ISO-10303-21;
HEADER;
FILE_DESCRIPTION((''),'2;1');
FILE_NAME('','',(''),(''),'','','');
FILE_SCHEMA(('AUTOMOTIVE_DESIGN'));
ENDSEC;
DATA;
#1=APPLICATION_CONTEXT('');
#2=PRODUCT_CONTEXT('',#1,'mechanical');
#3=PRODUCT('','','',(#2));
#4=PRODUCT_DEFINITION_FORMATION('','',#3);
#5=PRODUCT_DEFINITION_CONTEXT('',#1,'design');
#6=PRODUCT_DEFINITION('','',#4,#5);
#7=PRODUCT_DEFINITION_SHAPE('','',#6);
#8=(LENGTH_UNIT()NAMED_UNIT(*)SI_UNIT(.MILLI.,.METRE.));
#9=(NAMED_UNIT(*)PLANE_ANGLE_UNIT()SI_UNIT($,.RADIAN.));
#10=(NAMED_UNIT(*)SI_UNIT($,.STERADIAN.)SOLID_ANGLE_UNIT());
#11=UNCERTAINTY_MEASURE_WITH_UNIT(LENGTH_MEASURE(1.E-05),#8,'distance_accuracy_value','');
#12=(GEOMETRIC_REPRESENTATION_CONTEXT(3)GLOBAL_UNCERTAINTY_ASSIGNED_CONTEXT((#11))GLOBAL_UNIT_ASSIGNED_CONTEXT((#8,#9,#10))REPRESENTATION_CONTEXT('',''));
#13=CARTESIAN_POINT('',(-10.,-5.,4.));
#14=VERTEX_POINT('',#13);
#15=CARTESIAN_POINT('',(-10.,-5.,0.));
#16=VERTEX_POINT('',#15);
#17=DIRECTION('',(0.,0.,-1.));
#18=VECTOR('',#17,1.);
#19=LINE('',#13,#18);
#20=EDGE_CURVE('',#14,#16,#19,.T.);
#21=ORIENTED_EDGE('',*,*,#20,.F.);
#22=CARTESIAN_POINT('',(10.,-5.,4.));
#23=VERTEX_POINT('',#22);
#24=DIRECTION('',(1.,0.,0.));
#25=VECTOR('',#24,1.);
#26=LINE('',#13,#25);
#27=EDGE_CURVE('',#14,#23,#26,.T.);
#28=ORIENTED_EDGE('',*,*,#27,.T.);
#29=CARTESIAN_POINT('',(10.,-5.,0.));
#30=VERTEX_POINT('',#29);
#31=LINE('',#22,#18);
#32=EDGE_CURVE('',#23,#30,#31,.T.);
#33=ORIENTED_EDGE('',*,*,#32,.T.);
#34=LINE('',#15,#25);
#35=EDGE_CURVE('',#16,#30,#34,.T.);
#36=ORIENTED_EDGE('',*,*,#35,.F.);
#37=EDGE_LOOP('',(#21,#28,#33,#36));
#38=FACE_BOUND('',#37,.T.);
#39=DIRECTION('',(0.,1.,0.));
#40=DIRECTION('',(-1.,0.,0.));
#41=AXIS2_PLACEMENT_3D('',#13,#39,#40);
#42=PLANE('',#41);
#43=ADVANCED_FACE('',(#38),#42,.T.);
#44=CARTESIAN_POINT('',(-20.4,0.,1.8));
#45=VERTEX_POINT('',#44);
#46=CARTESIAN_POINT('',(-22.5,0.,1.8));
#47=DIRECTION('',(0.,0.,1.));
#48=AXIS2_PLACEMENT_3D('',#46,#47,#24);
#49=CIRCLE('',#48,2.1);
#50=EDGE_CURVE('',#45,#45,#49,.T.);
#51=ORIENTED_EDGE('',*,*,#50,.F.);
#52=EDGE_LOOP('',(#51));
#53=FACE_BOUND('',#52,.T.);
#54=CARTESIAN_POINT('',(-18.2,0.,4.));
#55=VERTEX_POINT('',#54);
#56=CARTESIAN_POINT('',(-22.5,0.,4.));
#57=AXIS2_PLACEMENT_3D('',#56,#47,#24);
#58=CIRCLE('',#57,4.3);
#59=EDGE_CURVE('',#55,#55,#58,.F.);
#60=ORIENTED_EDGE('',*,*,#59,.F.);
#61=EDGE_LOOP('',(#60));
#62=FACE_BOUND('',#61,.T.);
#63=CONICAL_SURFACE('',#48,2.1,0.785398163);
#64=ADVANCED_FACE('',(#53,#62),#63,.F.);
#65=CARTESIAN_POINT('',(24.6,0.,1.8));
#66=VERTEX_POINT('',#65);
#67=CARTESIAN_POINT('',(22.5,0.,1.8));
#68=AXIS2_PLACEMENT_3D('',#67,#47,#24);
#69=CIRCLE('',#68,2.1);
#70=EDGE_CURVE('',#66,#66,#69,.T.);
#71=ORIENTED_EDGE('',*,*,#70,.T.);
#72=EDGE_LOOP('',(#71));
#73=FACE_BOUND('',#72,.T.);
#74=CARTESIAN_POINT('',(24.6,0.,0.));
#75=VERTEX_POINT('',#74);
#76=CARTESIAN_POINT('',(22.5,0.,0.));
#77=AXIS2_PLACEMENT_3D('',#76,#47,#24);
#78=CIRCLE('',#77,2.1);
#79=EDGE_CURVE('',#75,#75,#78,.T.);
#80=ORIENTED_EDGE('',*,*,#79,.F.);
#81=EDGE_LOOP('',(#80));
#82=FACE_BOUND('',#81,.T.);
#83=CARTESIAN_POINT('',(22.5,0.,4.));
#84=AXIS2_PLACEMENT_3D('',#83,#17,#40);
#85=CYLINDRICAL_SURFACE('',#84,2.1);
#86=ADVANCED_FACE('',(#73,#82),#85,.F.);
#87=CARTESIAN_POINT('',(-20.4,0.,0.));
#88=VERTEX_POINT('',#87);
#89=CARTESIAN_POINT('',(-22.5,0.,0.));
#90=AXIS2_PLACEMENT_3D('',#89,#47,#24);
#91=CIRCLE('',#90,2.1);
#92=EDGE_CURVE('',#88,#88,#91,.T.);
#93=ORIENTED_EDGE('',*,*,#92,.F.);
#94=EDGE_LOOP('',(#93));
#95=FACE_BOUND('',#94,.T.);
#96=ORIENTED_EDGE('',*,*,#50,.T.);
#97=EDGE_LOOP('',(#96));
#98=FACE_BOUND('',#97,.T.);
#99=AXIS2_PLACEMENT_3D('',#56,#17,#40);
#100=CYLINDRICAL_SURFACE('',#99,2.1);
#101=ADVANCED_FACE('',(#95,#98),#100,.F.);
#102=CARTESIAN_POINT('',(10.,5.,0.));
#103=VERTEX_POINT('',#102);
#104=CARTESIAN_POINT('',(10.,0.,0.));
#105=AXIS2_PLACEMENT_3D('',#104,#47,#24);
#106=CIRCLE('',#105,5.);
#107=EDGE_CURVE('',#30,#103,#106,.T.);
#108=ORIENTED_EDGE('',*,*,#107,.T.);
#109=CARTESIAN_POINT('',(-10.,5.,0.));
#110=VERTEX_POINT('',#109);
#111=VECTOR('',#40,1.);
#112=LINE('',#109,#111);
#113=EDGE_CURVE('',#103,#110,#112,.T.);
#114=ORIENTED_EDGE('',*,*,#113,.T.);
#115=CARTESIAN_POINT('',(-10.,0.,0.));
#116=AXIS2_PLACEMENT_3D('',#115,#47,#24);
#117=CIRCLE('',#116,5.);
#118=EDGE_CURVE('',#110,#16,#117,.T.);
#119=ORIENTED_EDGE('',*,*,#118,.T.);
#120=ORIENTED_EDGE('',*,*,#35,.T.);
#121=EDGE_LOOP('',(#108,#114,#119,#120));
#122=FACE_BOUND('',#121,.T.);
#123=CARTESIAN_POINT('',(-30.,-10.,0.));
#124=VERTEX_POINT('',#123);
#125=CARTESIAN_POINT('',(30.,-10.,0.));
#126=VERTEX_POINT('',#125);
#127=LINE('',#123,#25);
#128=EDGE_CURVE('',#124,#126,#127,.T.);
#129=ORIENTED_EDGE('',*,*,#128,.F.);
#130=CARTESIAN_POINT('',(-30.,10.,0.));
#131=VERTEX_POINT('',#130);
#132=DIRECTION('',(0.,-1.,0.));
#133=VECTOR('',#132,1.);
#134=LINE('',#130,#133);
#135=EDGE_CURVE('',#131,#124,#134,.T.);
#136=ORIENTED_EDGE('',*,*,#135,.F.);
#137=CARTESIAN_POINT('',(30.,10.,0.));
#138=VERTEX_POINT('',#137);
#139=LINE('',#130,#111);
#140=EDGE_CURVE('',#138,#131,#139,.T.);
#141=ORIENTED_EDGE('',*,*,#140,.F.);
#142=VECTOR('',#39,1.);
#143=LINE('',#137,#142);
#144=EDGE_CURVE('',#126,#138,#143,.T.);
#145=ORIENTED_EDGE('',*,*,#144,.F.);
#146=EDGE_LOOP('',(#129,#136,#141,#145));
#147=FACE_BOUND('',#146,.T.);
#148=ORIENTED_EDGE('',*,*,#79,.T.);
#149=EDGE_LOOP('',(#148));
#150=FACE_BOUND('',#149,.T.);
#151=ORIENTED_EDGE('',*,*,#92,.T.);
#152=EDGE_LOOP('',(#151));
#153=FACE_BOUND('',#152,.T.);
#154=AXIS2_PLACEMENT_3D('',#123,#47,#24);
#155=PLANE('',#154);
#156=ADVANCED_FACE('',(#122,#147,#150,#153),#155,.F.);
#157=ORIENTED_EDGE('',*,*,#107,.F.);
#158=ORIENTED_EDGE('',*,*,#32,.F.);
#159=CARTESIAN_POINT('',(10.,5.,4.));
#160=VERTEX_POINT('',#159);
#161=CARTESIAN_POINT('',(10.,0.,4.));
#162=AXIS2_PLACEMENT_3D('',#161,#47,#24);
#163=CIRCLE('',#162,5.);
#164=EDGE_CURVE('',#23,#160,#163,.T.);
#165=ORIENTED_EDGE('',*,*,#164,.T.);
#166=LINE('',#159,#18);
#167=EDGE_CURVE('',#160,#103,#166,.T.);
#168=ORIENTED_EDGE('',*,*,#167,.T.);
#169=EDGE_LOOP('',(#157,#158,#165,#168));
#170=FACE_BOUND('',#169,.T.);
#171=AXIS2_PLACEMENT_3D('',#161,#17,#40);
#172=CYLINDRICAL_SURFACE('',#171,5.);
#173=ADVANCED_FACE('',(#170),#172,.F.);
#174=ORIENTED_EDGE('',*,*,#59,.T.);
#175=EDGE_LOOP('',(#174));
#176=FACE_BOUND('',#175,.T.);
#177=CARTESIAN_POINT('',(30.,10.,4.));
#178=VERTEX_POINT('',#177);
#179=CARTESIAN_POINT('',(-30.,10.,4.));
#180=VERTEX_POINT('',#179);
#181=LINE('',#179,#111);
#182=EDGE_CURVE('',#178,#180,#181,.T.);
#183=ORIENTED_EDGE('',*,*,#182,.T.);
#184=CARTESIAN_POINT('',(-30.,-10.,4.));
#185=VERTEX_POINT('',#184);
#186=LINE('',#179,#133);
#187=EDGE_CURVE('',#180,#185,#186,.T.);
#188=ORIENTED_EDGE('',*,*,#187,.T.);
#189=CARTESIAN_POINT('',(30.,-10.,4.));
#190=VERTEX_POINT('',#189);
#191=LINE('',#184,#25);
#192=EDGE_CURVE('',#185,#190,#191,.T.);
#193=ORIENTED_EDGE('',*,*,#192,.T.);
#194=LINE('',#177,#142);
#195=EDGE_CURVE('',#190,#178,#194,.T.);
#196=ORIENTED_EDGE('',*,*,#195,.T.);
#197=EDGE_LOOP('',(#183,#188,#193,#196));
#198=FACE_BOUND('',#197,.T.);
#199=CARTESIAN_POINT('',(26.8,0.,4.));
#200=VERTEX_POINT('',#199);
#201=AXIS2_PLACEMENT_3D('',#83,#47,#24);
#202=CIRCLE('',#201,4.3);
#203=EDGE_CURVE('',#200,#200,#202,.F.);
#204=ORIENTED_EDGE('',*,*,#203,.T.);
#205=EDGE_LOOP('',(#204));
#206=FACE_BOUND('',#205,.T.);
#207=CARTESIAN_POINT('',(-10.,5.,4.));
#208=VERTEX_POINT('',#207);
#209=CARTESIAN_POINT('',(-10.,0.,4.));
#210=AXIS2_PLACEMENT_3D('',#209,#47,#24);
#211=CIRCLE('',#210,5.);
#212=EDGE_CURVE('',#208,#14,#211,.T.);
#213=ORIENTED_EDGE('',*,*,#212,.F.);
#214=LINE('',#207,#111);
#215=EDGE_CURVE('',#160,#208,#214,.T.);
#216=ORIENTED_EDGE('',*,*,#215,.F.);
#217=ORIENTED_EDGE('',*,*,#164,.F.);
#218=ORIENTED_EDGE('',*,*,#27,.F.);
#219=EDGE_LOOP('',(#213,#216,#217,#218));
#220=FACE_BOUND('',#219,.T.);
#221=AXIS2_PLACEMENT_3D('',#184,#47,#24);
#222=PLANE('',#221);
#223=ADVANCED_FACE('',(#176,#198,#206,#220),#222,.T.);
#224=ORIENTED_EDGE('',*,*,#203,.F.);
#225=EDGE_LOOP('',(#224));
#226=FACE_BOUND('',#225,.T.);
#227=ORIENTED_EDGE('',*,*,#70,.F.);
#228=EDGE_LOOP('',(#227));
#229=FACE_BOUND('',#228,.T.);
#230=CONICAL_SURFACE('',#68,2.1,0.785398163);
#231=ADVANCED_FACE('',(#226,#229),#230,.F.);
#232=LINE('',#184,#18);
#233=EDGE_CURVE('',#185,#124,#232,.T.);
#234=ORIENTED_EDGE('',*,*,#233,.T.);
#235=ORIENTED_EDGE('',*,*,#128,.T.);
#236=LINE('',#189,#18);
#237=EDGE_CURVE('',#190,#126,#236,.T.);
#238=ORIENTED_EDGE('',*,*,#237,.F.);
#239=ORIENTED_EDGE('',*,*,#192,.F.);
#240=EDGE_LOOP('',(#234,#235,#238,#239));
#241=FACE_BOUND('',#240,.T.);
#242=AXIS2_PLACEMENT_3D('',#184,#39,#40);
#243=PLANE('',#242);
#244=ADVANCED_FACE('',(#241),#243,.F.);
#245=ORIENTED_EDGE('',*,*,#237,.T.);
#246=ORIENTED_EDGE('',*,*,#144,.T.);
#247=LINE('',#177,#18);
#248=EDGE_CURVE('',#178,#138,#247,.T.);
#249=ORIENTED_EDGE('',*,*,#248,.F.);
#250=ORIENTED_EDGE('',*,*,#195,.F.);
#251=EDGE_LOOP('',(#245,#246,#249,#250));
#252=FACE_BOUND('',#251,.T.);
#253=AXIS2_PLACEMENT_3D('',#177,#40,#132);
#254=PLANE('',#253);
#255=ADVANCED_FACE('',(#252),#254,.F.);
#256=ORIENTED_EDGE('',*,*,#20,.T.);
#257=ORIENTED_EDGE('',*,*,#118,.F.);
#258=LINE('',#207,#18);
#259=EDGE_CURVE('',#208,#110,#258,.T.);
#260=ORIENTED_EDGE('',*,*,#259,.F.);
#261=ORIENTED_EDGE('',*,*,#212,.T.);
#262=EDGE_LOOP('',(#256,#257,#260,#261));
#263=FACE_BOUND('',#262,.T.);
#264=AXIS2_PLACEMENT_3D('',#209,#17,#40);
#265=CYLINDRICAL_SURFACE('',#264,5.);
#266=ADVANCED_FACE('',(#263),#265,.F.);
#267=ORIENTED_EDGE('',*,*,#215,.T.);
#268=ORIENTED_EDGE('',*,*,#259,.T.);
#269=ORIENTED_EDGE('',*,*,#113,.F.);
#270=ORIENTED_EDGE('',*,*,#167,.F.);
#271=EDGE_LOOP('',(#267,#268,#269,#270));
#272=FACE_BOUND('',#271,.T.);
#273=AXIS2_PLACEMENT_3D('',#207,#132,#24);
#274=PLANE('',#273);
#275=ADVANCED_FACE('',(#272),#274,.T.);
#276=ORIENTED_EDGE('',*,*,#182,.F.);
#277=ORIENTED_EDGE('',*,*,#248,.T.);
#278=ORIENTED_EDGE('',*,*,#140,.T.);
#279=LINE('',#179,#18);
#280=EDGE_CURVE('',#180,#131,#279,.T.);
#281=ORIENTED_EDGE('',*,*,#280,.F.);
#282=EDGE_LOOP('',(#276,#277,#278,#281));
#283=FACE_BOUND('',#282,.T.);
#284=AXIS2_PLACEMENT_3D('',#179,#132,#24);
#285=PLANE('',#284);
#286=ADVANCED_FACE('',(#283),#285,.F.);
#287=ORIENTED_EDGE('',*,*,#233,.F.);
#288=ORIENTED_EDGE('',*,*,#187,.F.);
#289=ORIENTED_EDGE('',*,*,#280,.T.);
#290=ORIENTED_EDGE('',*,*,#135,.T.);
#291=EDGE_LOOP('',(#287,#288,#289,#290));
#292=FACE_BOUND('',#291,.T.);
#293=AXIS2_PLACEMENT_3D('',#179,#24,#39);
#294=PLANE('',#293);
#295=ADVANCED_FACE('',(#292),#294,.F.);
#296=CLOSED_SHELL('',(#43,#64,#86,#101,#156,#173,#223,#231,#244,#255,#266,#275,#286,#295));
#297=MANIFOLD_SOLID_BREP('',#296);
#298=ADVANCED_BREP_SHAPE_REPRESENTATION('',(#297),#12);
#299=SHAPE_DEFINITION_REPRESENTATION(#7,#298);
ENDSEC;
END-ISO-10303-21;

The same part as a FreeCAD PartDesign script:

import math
import FreeCAD as App
import Part
import Sketcher


def edges_at(feature, points):
    """Names of the edges that pass closest to the given points."""
    edges = feature.Shape.Edges
    near = lambda p: min(range(len(edges)), key=lambda i: edges[i].distToShape(Part.Vertex(*p))[0])
    return sorted({f"Edge{near(p) + 1}" for p in points})

doc = App.newDocument("Part")
body = doc.addObject("PartDesign::Body", "Body")

sketch1 = doc.addObject("Sketcher::SketchObject", "Sketch")
body.addObject(sketch1)
sketch1.AttachmentSupport = (doc.XY_Plane, [""])
sketch1.MapMode = "FlatFace"
sketch1.addGeometry([
    Part.LineSegment(App.Vector(-30, 10, 0), App.Vector(-30, -10, 0)),
    Part.LineSegment(App.Vector(-30, -10, 0), App.Vector(30, -10, 0)),
    Part.LineSegment(App.Vector(30, -10, 0), App.Vector(30, 10, 0)),
    Part.LineSegment(App.Vector(30, 10, 0), App.Vector(-30, 10, 0)),
    Part.Circle(App.Vector(-22.5, 0, 0), App.Vector(0, 0, 1), 2.1),
    Part.ArcOfCircle(Part.Circle(App.Vector(-10, 0, 0), App.Vector(0, 0, 1), 5), math.radians(90), math.radians(270)),
    Part.LineSegment(App.Vector(-10, 5, 0), App.Vector(10, 5, 0)),
    Part.ArcOfCircle(Part.Circle(App.Vector(10, 0, 0), App.Vector(0, 0, 1), 5), math.radians(-90), math.radians(90)),
    Part.LineSegment(App.Vector(10, -5, 0), App.Vector(-10, -5, 0)),
    Part.Circle(App.Vector(22.5, 0, 0), App.Vector(0, 0, 1), 2.1),
], False)
sketch1.addConstraint([
    Sketcher.Constraint("Coincident", 0, 2, 1, 1),
    Sketcher.Constraint("Coincident", 1, 2, 2, 1),
    Sketcher.Constraint("Coincident", 2, 2, 3, 1),
    Sketcher.Constraint("Coincident", 3, 2, 0, 1),
    Sketcher.Constraint("Tangent", 5, 1, 6, 1),
    Sketcher.Constraint("Tangent", 6, 2, 7, 2),
    Sketcher.Constraint("Tangent", 7, 1, 8, 1),
    Sketcher.Constraint("Tangent", 8, 2, 5, 2),
    Sketcher.Constraint("Vertical", 0),
    Sketcher.Constraint("Horizontal", 1),
    Sketcher.Constraint("Vertical", 2),
    Sketcher.Constraint("Horizontal", 3),
    Sketcher.Constraint("Horizontal", 6),
    Sketcher.Constraint("Horizontal", 8),
    Sketcher.Constraint("Equal", 4, 9),
    Sketcher.Constraint("Symmetric", 5, 3, 7, 3, -1, 1),
    Sketcher.Constraint("Symmetric", 4, 3, 9, 3, -1, 1),
    Sketcher.Constraint("Symmetric", 0, 2, 2, 2, -1, 1),
    Sketcher.Constraint("PointOnObject", 4, 3, -1),
    Sketcher.Constraint("Equal", 8, 0),
    Sketcher.Constraint("Radius", 5, 5.0),
    Sketcher.Constraint("Diameter", 4, 4.2),
    Sketcher.Constraint("DistanceX", 1, 1, 1, 2, 60.0),
    Sketcher.Constraint("DistanceX", 6, 1, 6, 2, 20.0),
    Sketcher.Constraint("DistanceX", 4, 3, 9, 3, 45.0),
])
pad1 = doc.addObject("PartDesign::Pad", "Pad")
body.addObject(pad1)
pad1.Profile = sketch1
pad1.Length = 4
doc.recompute()

chamfer = doc.addObject("PartDesign::Chamfer", "Chamfer")
body.addObject(chamfer)
chamfer.Base = (pad1, edges_at(pad1, [(-24.6, 0, 4), (20.4, 0, 4)]))
chamfer.Size = 2.2

doc.recompute()
